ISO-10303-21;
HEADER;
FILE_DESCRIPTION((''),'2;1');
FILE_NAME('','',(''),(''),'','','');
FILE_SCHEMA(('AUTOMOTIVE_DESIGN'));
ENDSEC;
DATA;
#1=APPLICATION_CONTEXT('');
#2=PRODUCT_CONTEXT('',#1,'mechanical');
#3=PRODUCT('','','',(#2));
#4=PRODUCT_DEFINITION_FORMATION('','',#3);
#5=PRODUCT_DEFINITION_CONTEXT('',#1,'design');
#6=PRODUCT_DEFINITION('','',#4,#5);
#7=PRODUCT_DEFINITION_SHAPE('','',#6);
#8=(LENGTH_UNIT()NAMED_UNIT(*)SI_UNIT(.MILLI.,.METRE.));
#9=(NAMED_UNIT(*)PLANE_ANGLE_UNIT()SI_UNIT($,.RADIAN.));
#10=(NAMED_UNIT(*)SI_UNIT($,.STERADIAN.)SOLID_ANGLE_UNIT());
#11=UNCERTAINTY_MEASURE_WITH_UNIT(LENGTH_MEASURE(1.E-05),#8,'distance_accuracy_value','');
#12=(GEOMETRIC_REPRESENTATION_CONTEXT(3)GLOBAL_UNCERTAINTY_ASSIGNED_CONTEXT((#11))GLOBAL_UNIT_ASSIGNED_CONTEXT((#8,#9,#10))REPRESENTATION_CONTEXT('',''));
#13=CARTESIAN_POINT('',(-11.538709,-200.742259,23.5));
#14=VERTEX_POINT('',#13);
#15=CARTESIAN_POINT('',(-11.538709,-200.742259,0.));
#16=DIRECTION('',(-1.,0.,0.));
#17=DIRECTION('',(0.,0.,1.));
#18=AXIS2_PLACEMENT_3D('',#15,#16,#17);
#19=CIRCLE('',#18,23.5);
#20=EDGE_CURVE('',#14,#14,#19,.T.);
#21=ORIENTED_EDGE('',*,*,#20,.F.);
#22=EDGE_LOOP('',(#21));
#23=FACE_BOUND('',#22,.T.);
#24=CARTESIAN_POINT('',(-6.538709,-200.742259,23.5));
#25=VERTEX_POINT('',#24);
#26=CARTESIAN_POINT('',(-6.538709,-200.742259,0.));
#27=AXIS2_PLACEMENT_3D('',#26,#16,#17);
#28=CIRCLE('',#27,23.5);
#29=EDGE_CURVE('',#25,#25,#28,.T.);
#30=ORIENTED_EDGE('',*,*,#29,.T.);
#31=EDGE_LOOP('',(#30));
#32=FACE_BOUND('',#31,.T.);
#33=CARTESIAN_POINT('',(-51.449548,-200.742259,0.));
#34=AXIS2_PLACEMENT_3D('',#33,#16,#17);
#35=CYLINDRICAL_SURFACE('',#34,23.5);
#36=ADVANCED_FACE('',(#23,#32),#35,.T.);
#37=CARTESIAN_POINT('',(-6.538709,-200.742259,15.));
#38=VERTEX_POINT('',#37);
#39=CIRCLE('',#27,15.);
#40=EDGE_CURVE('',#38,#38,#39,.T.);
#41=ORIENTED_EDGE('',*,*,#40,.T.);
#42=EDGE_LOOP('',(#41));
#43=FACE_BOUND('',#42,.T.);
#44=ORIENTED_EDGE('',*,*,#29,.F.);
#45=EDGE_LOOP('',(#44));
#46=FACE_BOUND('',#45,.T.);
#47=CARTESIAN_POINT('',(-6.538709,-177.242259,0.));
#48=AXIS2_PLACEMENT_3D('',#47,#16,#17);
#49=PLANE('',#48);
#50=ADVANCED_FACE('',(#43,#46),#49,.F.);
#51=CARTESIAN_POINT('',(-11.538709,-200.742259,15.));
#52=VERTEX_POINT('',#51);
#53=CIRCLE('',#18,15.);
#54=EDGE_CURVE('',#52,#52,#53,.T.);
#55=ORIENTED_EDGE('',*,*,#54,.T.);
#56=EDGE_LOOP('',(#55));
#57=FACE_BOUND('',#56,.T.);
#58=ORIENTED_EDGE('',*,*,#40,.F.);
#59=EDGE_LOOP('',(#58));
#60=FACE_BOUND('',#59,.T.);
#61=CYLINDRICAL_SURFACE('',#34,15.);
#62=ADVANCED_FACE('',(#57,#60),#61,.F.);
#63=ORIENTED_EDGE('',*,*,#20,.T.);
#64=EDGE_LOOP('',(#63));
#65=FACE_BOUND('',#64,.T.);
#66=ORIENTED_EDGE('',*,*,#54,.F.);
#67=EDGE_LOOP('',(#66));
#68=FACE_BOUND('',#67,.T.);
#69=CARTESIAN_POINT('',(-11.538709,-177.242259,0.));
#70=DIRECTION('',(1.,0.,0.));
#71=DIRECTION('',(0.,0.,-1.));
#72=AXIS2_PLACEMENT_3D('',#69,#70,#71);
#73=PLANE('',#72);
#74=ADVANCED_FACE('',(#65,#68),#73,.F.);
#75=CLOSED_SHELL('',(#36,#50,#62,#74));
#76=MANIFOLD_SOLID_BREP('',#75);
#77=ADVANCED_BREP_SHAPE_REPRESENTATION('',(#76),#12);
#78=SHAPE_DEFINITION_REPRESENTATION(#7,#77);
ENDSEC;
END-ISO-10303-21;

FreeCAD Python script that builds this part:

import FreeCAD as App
import Part
import Sketcher

V = App.Vector
Q = App.Units.Quantity


def add_polygon(sketch, points):
    """Adds a closed chain of lines whose ends are joined by coincident constraints."""
    first, n = sketch.GeometryCount, len(points)
    for a, b in zip(points, points[1:] + points[:1]):
        sketch.addGeometry(Part.LineSegment(App.Vector(*a, 0), App.Vector(*b, 0)), False)
    for i in range(n):
        sketch.addConstraint(Sketcher.Constraint("Coincident", first + i, 2, first + (i + 1) % n, 1))

doc = App.newDocument("Part")
body = doc.addObject("PartDesign::Body", "Body")

sketch1 = body.newObject("Sketcher::SketchObject", "Sketch")
sketch1.AttachmentSupport = (doc.getObject("XY_Plane"), [""])
sketch1.MapMode = "FlatFace"
add_polygon(sketch1, [(-11.538709, -177.242259), (-11.538709, -185.742259), (-6.538709, -185.742259), (-6.538709, -177.242259)])
sketch1.addGeometry(Part.LineSegment(V(-11.538709, -200.742259, 0), V(-6.538709, -200.742259, 0)), True)
sketch1.addConstraint(Sketcher.Constraint("Vertical", 0))
sketch1.addConstraint(Sketcher.Constraint("Horizontal", 1))
sketch1.addConstraint(Sketcher.Constraint("Vertical", 2))
sketch1.addConstraint(Sketcher.Constraint("Horizontal", 3))
sketch1.addConstraint(Sketcher.Constraint("Horizontal", 4))
sketch1.addConstraint(Sketcher.Constraint("Vertical", 3, 2, 4, 1))
sketch1.addConstraint(Sketcher.Constraint("Vertical", 2, 2, 4, 2))
sketch1.addConstraint(Sketcher.Constraint("DistanceX", 1, 1, 1, 2, Q("5 mm")))
sketch1.addConstraint(Sketcher.Constraint("DistanceY", 0, 2, 0, 1, Q("8.5 mm")))
sketch1.addConstraint(Sketcher.Constraint("DistanceY", 4, 1, 0, 2, Q("15 mm")))
sketch1.addConstraint(Sketcher.Constraint("DistanceX", 0, 2, -1, 1, Q("11.538709 mm")))
sketch1.addConstraint(Sketcher.Constraint("DistanceY", 0, 2, -1, 1, Q("185.742259 mm")))
revolution = body.newObject("PartDesign::Revolution", "Revolution")
revolution.Profile = sketch1
revolution.ReferenceAxis = (sketch1, ["Axis0"])
revolution.Angle = 360

doc.recompute()
